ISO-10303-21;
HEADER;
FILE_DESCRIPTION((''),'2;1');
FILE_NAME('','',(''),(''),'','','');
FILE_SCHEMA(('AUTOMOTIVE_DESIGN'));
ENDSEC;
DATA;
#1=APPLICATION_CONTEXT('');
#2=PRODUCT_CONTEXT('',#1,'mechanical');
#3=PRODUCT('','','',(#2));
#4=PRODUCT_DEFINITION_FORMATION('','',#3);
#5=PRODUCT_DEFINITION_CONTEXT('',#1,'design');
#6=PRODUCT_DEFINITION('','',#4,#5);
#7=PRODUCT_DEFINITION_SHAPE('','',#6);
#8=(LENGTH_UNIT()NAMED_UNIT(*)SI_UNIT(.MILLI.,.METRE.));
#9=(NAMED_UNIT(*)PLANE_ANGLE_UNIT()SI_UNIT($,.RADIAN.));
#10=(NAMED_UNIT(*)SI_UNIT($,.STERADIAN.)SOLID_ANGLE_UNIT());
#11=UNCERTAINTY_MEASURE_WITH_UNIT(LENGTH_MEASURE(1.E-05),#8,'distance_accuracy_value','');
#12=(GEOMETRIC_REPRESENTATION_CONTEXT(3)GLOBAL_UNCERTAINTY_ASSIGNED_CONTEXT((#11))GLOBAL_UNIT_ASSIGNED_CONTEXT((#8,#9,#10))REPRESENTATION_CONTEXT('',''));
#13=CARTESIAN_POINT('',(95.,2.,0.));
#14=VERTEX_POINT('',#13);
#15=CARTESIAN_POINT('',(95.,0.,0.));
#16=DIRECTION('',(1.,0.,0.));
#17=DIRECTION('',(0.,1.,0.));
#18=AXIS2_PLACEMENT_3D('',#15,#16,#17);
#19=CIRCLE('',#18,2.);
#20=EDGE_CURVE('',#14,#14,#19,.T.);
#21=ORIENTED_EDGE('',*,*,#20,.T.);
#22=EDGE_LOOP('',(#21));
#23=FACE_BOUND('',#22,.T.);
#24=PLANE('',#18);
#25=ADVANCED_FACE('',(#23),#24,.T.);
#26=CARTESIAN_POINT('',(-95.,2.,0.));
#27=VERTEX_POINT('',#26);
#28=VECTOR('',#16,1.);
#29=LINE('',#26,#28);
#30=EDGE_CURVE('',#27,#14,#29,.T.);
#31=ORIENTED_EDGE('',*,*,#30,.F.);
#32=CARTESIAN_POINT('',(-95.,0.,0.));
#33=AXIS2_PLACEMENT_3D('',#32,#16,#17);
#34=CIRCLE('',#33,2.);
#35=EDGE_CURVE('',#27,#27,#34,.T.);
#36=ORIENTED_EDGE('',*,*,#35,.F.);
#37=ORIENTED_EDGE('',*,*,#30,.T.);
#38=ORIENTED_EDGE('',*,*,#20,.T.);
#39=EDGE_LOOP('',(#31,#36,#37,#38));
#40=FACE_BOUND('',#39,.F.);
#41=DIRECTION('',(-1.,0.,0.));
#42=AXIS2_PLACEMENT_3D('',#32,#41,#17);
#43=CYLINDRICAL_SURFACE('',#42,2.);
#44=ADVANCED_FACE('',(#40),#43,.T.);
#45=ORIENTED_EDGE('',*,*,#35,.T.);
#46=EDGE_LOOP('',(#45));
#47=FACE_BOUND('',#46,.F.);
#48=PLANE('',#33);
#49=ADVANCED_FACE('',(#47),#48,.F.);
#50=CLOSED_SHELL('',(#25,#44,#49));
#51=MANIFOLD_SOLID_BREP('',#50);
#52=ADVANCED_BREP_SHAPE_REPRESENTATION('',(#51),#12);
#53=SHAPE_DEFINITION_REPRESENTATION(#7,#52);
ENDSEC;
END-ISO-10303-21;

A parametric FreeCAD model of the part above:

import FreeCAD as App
import Part
import Sketcher

V = App.Vector

doc = App.newDocument("Part")
params = doc.addObject("Spreadsheet::Sheet", "Params")
for row, (alias, value) in enumerate([
    ("sketch1_diameter", "4 mm"),
    ("pad1_length", "190 mm"),
], start=1):
    params.set(f"A{row}", alias)
    params.set(f"B{row}", "=" + value)
    params.setAlias(f"B{row}", alias)

body = doc.addObject("PartDesign::Body", "Body")

# Sketch on YZ plane
sketch1 = body.newObject("Sketcher::SketchObject", "Sketch")
sketch1.AttachmentSupport = (doc.getObject("YZ_Plane"), [""])
sketch1.MapMode = "FlatFace"
sketch1.AttachmentOffset = App.Placement(V(0, 0, -95), App.Rotation())
sketch1.addGeometry(Part.Circle(V(0, 0, 0), V(0, 0, 1), 2), False)
sketch1.addConstraint(Sketcher.Constraint("Coincident", 0, 3, -1, 1))
sketch1.addConstraint(Sketcher.Constraint("Diameter", 0, 4.0))
sketch1.setExpression("Constraints[1]", "Params.sketch1_diameter")
pad1 = body.newObject("PartDesign::Pad", "Pad")
pad1.Profile = sketch1
pad1.setExpression("Length", "Params.pad1_length")

doc.recompute()
